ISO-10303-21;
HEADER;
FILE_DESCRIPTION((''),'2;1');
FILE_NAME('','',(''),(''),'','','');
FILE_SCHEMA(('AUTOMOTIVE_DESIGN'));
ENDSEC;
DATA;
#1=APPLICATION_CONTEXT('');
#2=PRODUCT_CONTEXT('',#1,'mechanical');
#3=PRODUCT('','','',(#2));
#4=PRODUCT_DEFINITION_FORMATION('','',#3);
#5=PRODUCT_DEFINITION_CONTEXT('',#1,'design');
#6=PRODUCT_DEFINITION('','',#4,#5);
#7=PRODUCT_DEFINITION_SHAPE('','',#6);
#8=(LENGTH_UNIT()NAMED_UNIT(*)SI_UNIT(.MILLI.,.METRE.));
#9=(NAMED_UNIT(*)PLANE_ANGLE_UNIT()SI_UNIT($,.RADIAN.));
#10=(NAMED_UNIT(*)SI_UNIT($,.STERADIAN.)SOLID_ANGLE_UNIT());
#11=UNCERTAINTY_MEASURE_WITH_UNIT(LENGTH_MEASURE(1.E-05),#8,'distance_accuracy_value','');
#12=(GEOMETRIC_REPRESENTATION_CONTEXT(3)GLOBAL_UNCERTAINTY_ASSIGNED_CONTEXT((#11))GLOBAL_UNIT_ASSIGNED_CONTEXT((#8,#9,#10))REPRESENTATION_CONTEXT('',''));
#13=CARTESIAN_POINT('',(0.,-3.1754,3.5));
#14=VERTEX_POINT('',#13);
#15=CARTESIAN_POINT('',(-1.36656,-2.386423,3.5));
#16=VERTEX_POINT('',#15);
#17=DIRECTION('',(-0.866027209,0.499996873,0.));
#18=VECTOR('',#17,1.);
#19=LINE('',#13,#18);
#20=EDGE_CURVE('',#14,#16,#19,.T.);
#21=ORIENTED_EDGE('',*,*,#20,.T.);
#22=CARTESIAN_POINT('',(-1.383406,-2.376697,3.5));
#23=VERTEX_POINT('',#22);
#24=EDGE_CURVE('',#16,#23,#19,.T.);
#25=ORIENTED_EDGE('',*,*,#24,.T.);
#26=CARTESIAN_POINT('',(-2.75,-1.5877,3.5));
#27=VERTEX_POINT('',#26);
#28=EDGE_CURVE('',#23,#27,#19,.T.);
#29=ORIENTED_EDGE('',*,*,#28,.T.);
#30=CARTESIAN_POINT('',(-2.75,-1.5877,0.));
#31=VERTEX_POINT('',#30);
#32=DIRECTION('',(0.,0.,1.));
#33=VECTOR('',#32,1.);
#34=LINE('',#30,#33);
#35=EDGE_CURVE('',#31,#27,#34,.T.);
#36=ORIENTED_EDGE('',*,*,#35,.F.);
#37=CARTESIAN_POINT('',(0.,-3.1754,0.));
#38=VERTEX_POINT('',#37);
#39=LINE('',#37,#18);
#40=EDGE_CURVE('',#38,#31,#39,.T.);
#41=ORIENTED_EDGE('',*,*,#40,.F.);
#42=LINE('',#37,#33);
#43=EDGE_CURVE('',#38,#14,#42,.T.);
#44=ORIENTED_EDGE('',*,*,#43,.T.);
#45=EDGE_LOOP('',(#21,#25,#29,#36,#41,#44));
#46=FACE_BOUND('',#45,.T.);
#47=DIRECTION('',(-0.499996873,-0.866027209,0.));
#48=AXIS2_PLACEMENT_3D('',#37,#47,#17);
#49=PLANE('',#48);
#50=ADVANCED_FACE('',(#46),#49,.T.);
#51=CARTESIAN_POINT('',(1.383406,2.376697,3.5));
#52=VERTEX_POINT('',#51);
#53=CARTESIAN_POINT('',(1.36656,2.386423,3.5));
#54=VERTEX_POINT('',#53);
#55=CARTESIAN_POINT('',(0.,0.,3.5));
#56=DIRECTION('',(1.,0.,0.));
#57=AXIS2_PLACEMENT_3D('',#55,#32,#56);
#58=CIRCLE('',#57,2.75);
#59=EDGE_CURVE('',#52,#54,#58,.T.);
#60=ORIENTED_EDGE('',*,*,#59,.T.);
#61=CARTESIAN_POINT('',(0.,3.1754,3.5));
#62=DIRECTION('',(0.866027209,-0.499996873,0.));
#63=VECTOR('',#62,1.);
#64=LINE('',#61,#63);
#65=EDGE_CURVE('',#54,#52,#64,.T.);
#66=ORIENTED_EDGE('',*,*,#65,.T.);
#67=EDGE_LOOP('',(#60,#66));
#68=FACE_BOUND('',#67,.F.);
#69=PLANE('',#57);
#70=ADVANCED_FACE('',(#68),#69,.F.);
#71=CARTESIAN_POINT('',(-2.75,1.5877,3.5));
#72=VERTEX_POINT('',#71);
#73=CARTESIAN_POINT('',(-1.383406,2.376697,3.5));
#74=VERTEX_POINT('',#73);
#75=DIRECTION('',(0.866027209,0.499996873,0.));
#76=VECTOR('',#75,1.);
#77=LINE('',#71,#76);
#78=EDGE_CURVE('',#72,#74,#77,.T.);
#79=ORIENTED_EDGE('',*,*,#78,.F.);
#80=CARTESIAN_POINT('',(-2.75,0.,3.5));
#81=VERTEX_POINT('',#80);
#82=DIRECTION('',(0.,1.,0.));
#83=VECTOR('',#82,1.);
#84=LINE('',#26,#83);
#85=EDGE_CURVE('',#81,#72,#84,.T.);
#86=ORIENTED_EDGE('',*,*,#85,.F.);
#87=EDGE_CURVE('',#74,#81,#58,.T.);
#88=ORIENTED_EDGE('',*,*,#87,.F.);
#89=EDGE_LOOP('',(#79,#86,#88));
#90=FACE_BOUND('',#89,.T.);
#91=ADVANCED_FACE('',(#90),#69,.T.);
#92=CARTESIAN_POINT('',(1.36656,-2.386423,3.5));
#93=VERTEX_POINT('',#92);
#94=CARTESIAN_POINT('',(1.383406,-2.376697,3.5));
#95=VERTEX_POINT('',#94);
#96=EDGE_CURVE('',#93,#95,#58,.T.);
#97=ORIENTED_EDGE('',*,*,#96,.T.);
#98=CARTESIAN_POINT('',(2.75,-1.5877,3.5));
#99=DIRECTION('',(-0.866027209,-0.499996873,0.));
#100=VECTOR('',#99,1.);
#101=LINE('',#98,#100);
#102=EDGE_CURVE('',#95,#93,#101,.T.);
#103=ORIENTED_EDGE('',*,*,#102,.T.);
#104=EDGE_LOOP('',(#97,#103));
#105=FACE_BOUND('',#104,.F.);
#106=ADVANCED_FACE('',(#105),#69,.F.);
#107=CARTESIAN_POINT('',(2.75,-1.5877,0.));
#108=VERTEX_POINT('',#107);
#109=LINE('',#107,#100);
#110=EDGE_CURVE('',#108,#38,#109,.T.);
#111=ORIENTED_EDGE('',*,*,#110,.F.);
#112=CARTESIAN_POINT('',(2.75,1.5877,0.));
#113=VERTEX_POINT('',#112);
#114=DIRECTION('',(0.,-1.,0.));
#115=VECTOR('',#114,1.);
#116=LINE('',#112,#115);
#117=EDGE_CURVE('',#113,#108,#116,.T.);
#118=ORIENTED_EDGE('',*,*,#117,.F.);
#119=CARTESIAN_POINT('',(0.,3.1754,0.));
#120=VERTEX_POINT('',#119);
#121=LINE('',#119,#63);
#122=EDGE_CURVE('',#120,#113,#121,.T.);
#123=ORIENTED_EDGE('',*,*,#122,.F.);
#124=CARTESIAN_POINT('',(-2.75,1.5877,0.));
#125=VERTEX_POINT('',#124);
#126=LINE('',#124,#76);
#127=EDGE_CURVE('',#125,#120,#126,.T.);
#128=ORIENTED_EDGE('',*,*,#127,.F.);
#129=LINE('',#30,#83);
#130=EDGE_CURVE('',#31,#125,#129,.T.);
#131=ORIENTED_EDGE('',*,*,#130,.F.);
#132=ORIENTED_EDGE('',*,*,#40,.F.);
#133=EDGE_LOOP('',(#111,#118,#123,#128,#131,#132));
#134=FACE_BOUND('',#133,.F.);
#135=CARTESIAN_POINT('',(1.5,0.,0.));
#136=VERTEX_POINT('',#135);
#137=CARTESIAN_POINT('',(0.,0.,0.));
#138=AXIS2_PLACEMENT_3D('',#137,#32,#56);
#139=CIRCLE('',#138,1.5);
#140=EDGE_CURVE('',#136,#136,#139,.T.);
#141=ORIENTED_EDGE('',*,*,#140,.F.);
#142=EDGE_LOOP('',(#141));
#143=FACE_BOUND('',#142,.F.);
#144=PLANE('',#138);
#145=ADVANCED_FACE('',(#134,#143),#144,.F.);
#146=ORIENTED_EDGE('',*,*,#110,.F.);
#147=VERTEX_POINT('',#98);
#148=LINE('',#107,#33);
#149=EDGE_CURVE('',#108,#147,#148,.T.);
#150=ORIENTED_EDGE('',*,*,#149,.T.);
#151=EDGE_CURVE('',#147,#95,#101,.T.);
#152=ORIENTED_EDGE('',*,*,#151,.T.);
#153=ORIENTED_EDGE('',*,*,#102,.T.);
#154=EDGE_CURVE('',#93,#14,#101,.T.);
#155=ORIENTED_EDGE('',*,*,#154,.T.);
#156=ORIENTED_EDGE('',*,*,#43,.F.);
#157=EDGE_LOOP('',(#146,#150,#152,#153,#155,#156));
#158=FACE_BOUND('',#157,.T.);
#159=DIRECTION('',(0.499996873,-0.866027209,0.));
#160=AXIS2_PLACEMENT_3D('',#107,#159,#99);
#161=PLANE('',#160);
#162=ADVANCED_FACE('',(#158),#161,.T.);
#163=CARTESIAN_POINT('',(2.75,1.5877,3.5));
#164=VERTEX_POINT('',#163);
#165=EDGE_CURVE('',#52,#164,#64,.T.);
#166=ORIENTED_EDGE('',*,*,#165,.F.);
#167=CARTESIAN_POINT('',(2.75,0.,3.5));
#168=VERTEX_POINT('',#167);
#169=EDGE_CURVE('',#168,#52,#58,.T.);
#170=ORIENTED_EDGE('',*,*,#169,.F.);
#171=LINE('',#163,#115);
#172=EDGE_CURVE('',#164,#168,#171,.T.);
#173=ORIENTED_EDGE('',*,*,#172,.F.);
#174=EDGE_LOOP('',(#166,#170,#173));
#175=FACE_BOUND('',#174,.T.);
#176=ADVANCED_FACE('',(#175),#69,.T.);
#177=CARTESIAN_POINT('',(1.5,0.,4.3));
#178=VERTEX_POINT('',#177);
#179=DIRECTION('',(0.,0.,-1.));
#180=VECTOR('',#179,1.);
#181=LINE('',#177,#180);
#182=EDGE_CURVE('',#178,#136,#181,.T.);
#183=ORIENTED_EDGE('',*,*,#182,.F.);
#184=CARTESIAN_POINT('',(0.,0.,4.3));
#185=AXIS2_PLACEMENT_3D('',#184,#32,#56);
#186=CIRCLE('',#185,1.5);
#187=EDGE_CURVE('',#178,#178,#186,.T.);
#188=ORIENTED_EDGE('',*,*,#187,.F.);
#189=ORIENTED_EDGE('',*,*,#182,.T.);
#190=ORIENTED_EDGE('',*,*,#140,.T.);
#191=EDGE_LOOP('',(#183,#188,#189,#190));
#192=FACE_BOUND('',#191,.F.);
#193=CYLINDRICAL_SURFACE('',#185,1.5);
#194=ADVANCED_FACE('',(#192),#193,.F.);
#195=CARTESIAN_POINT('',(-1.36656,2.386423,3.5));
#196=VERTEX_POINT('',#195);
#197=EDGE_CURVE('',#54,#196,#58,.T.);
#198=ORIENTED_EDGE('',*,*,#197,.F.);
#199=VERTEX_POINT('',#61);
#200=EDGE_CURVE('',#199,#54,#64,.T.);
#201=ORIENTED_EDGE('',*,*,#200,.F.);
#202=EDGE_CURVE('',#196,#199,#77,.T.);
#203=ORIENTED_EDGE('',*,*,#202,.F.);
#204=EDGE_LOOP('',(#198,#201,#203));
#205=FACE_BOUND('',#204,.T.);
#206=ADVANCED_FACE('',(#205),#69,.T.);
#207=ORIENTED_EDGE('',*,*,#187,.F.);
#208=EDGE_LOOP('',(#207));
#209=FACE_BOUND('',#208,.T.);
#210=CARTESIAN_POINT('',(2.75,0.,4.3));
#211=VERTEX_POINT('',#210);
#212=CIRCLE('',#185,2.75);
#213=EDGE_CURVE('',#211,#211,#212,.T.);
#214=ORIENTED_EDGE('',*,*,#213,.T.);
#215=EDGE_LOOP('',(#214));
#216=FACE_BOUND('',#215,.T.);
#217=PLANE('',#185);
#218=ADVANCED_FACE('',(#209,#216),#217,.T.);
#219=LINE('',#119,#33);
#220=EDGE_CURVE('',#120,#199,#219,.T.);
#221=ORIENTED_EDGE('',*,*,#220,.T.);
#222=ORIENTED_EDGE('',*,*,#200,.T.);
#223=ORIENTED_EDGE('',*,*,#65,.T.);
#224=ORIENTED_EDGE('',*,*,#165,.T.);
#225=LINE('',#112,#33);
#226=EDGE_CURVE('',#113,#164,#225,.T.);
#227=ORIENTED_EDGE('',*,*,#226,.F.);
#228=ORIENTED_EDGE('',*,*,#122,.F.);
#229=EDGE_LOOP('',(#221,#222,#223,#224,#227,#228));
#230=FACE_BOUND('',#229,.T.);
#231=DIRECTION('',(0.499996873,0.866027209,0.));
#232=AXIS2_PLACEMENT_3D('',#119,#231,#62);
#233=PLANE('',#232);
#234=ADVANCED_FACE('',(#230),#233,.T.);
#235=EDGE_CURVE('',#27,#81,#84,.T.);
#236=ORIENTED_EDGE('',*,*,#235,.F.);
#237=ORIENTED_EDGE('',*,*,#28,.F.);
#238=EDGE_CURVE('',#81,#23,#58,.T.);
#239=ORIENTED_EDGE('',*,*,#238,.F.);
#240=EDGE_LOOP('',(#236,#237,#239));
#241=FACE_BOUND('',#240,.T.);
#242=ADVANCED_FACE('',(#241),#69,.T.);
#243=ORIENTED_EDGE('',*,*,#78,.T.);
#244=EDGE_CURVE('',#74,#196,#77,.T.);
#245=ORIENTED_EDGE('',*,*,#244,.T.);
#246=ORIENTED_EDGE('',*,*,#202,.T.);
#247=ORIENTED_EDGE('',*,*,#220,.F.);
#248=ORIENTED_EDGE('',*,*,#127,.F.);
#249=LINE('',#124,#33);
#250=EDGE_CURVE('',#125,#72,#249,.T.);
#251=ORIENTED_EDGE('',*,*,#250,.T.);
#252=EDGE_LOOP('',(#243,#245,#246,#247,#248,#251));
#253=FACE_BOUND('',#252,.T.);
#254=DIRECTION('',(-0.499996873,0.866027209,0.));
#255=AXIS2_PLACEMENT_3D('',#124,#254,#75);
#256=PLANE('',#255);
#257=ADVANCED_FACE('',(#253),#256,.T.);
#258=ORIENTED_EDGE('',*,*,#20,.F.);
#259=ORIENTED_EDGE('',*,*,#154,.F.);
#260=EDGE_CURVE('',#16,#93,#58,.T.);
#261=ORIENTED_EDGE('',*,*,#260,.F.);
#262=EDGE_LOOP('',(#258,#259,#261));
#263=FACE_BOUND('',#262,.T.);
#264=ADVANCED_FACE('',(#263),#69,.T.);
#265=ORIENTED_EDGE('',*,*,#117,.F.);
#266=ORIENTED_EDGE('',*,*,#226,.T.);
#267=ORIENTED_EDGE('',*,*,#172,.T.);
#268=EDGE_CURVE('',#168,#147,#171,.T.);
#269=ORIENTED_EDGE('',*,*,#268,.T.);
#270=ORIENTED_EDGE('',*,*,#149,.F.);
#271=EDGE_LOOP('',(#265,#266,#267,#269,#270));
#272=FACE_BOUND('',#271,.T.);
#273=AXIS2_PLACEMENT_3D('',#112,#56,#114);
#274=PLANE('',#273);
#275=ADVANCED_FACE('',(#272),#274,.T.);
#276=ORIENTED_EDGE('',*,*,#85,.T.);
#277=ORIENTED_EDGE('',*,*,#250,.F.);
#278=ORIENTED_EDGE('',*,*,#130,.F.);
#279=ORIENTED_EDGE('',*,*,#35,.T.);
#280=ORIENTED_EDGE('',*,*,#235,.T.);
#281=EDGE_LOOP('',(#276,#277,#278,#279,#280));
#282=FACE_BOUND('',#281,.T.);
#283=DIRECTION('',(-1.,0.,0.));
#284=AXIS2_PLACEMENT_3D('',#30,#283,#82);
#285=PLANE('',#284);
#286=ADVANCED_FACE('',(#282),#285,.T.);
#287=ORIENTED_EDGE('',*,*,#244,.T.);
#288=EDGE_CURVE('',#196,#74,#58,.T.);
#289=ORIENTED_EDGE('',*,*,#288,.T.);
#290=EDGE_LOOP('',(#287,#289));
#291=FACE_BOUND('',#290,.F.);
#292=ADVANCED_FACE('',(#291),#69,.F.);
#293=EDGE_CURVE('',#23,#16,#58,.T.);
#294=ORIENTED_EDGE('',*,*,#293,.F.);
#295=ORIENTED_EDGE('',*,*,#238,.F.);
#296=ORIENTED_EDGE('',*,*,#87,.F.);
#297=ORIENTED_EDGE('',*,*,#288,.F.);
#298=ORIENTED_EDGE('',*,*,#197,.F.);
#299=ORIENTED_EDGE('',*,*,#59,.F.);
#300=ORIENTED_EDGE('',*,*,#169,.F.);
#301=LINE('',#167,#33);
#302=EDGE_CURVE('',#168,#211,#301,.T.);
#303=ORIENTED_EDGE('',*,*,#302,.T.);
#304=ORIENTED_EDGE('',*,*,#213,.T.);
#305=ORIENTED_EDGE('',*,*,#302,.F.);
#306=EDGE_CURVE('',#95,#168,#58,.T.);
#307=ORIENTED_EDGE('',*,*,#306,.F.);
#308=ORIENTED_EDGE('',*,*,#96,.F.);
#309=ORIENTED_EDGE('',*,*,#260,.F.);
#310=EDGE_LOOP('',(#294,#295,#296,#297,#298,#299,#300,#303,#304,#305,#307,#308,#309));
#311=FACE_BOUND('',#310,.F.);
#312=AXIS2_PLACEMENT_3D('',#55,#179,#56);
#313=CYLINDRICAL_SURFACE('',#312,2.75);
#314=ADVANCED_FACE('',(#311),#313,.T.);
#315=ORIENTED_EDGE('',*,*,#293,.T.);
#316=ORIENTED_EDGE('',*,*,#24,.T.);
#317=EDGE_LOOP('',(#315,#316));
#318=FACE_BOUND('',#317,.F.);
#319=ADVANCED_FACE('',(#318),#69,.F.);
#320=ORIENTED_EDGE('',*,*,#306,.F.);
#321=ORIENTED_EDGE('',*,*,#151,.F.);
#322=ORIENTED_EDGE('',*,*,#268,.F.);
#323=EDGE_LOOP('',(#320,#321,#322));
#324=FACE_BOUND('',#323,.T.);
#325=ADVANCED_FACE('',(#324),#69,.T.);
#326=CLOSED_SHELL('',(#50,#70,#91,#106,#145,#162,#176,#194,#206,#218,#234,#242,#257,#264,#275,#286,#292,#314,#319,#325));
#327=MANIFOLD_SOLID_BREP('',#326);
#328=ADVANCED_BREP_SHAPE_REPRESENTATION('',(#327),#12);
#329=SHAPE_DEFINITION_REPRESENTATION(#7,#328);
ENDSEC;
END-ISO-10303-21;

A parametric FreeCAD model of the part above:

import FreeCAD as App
import Part
import Sketcher
from FreeCAD import Vector
Q = App.Units.Quantity


def add_polygon(sketch, points):
    """Adds a closed chain of lines whose ends are joined by coincident constraints."""
    first, n = sketch.GeometryCount, len(points)
    for a, b in zip(points, points[1:] + points[:1]):
        sketch.addGeometry(Part.LineSegment(App.Vector(*a, 0), App.Vector(*b, 0)), False)
    for i in range(n):
        sketch.addConstraint(Sketcher.Constraint("Coincident", first + i, 2, first + (i + 1) % n, 1))

doc = App.newDocument("Part")
params = doc.addObject("Spreadsheet::Sheet", "Params")
for row, (alias, value) in enumerate([
    ("pad1_length", "3.5 mm"),
    ("sketch2_diameter", "5.5 mm"),
    ("pad2_length", "0.8 mm"),
    ("sketch3_diameter", "3 mm"),
], start=1):
    params.set(f"A{row}", alias)
    params.set(f"B{row}", "=" + value)
    params.setAlias(f"B{row}", alias)

body = doc.addObject("PartDesign::Body", "Body")

# Sketch on XY plane
sketch1 = body.newObject("Sketcher::SketchObject", "Sketch")
sketch1.AttachmentSupport = (doc.getObject("XY_Plane"), [""])
sketch1.MapMode = "FlatFace"
add_polygon(sketch1, [(2.8, 1.6), (0, 3.2), (-2.8, 1.6), (-2.8, -1.6), (0, -3.2), (2.8, -1.6)])  # lines 0-5
sketch1.addConstraint(Sketcher.Constraint("Vertical", 2))
sketch1.addConstraint(Sketcher.Constraint("Vertical", 5))
sketch1.addConstraint(Sketcher.Constraint("Symmetric", 0, 2, 3, 2, -1, 1))
sketch1.addConstraint(Sketcher.Constraint("Symmetric", 1, 2, 4, 2, -1, 1))
sketch1.addConstraint(Sketcher.Constraint("PointOnObject", 0, 2, -2))
sketch1.addConstraint(Sketcher.Constraint("Parallel", 0, 3))
sketch1.addConstraint(Sketcher.Constraint("Horizontal", 2, 2, 4, 2))
sketch1.addConstraint(Sketcher.Constraint("DistanceX", 2, 2, 4, 2, Q("5.5 mm")))
sketch1.addConstraint(Sketcher.Constraint("Angle", 0, Q("150.0002 deg")))
sketch1.addConstraint(Sketcher.Constraint("DistanceY", 2, 2, 2, 1, Q("3.1754 mm")))
pad1 = body.newObject("PartDesign::Pad", "Pad")
pad1.Profile = sketch1
pad1.setExpression("Length", "Params.pad1_length")

# Sketch on XY plane
sketch2 = body.newObject("Sketcher::SketchObject", "Sketch001")
sketch2.AttachmentSupport = (doc.getObject("XY_Plane"), [""])
sketch2.MapMode = "FlatFace"
sketch2.AttachmentOffset = App.Placement(Vector(0, 0, 3.5), App.Rotation())
sketch2.addGeometry(Part.Circle(Vector(0, 0, 0), Vector(0, 0, 1), 2.8), False)
sketch2.addConstraint(Sketcher.Constraint("Coincident", 0, 3, -1, 1))
sketch2.addConstraint(Sketcher.Constraint("Diameter", 0, Q("5.5 mm")))
sketch2.setExpression("Constraints[1]", "Params.sketch2_diameter")
pad2 = body.newObject("PartDesign::Pad", "Pad001")
pad2.Profile = sketch2
pad2.setExpression("Length", "Params.pad2_length")

# Sketch on XY plane
sketch3 = body.newObject("Sketcher::SketchObject", "Sketch002")
sketch3.AttachmentSupport = (doc.getObject("XY_Plane"), [""])
sketch3.MapMode = "FlatFace"
sketch3.AttachmentOffset = App.Placement(Vector(0, 0, 4.3), App.Rotation())
sketch3.addGeometry(Part.Circle(Vector(0, 0, 0), Vector(0, 0, 1), 1.5), False)
sketch3.addConstraint(Sketcher.Constraint("Coincident", 0, 3, -1, 1))
sketch3.addConstraint(Sketcher.Constraint("Diameter", 0, Q("3 mm")))
sketch3.setExpression("Constraints[1]", "Params.sketch3_diameter")
pocket1 = body.newObject("PartDesign::Pocket", "Pocket")
pocket1.Profile = sketch3
pocket1.Type = "ThroughAll"

doc.recompute()
